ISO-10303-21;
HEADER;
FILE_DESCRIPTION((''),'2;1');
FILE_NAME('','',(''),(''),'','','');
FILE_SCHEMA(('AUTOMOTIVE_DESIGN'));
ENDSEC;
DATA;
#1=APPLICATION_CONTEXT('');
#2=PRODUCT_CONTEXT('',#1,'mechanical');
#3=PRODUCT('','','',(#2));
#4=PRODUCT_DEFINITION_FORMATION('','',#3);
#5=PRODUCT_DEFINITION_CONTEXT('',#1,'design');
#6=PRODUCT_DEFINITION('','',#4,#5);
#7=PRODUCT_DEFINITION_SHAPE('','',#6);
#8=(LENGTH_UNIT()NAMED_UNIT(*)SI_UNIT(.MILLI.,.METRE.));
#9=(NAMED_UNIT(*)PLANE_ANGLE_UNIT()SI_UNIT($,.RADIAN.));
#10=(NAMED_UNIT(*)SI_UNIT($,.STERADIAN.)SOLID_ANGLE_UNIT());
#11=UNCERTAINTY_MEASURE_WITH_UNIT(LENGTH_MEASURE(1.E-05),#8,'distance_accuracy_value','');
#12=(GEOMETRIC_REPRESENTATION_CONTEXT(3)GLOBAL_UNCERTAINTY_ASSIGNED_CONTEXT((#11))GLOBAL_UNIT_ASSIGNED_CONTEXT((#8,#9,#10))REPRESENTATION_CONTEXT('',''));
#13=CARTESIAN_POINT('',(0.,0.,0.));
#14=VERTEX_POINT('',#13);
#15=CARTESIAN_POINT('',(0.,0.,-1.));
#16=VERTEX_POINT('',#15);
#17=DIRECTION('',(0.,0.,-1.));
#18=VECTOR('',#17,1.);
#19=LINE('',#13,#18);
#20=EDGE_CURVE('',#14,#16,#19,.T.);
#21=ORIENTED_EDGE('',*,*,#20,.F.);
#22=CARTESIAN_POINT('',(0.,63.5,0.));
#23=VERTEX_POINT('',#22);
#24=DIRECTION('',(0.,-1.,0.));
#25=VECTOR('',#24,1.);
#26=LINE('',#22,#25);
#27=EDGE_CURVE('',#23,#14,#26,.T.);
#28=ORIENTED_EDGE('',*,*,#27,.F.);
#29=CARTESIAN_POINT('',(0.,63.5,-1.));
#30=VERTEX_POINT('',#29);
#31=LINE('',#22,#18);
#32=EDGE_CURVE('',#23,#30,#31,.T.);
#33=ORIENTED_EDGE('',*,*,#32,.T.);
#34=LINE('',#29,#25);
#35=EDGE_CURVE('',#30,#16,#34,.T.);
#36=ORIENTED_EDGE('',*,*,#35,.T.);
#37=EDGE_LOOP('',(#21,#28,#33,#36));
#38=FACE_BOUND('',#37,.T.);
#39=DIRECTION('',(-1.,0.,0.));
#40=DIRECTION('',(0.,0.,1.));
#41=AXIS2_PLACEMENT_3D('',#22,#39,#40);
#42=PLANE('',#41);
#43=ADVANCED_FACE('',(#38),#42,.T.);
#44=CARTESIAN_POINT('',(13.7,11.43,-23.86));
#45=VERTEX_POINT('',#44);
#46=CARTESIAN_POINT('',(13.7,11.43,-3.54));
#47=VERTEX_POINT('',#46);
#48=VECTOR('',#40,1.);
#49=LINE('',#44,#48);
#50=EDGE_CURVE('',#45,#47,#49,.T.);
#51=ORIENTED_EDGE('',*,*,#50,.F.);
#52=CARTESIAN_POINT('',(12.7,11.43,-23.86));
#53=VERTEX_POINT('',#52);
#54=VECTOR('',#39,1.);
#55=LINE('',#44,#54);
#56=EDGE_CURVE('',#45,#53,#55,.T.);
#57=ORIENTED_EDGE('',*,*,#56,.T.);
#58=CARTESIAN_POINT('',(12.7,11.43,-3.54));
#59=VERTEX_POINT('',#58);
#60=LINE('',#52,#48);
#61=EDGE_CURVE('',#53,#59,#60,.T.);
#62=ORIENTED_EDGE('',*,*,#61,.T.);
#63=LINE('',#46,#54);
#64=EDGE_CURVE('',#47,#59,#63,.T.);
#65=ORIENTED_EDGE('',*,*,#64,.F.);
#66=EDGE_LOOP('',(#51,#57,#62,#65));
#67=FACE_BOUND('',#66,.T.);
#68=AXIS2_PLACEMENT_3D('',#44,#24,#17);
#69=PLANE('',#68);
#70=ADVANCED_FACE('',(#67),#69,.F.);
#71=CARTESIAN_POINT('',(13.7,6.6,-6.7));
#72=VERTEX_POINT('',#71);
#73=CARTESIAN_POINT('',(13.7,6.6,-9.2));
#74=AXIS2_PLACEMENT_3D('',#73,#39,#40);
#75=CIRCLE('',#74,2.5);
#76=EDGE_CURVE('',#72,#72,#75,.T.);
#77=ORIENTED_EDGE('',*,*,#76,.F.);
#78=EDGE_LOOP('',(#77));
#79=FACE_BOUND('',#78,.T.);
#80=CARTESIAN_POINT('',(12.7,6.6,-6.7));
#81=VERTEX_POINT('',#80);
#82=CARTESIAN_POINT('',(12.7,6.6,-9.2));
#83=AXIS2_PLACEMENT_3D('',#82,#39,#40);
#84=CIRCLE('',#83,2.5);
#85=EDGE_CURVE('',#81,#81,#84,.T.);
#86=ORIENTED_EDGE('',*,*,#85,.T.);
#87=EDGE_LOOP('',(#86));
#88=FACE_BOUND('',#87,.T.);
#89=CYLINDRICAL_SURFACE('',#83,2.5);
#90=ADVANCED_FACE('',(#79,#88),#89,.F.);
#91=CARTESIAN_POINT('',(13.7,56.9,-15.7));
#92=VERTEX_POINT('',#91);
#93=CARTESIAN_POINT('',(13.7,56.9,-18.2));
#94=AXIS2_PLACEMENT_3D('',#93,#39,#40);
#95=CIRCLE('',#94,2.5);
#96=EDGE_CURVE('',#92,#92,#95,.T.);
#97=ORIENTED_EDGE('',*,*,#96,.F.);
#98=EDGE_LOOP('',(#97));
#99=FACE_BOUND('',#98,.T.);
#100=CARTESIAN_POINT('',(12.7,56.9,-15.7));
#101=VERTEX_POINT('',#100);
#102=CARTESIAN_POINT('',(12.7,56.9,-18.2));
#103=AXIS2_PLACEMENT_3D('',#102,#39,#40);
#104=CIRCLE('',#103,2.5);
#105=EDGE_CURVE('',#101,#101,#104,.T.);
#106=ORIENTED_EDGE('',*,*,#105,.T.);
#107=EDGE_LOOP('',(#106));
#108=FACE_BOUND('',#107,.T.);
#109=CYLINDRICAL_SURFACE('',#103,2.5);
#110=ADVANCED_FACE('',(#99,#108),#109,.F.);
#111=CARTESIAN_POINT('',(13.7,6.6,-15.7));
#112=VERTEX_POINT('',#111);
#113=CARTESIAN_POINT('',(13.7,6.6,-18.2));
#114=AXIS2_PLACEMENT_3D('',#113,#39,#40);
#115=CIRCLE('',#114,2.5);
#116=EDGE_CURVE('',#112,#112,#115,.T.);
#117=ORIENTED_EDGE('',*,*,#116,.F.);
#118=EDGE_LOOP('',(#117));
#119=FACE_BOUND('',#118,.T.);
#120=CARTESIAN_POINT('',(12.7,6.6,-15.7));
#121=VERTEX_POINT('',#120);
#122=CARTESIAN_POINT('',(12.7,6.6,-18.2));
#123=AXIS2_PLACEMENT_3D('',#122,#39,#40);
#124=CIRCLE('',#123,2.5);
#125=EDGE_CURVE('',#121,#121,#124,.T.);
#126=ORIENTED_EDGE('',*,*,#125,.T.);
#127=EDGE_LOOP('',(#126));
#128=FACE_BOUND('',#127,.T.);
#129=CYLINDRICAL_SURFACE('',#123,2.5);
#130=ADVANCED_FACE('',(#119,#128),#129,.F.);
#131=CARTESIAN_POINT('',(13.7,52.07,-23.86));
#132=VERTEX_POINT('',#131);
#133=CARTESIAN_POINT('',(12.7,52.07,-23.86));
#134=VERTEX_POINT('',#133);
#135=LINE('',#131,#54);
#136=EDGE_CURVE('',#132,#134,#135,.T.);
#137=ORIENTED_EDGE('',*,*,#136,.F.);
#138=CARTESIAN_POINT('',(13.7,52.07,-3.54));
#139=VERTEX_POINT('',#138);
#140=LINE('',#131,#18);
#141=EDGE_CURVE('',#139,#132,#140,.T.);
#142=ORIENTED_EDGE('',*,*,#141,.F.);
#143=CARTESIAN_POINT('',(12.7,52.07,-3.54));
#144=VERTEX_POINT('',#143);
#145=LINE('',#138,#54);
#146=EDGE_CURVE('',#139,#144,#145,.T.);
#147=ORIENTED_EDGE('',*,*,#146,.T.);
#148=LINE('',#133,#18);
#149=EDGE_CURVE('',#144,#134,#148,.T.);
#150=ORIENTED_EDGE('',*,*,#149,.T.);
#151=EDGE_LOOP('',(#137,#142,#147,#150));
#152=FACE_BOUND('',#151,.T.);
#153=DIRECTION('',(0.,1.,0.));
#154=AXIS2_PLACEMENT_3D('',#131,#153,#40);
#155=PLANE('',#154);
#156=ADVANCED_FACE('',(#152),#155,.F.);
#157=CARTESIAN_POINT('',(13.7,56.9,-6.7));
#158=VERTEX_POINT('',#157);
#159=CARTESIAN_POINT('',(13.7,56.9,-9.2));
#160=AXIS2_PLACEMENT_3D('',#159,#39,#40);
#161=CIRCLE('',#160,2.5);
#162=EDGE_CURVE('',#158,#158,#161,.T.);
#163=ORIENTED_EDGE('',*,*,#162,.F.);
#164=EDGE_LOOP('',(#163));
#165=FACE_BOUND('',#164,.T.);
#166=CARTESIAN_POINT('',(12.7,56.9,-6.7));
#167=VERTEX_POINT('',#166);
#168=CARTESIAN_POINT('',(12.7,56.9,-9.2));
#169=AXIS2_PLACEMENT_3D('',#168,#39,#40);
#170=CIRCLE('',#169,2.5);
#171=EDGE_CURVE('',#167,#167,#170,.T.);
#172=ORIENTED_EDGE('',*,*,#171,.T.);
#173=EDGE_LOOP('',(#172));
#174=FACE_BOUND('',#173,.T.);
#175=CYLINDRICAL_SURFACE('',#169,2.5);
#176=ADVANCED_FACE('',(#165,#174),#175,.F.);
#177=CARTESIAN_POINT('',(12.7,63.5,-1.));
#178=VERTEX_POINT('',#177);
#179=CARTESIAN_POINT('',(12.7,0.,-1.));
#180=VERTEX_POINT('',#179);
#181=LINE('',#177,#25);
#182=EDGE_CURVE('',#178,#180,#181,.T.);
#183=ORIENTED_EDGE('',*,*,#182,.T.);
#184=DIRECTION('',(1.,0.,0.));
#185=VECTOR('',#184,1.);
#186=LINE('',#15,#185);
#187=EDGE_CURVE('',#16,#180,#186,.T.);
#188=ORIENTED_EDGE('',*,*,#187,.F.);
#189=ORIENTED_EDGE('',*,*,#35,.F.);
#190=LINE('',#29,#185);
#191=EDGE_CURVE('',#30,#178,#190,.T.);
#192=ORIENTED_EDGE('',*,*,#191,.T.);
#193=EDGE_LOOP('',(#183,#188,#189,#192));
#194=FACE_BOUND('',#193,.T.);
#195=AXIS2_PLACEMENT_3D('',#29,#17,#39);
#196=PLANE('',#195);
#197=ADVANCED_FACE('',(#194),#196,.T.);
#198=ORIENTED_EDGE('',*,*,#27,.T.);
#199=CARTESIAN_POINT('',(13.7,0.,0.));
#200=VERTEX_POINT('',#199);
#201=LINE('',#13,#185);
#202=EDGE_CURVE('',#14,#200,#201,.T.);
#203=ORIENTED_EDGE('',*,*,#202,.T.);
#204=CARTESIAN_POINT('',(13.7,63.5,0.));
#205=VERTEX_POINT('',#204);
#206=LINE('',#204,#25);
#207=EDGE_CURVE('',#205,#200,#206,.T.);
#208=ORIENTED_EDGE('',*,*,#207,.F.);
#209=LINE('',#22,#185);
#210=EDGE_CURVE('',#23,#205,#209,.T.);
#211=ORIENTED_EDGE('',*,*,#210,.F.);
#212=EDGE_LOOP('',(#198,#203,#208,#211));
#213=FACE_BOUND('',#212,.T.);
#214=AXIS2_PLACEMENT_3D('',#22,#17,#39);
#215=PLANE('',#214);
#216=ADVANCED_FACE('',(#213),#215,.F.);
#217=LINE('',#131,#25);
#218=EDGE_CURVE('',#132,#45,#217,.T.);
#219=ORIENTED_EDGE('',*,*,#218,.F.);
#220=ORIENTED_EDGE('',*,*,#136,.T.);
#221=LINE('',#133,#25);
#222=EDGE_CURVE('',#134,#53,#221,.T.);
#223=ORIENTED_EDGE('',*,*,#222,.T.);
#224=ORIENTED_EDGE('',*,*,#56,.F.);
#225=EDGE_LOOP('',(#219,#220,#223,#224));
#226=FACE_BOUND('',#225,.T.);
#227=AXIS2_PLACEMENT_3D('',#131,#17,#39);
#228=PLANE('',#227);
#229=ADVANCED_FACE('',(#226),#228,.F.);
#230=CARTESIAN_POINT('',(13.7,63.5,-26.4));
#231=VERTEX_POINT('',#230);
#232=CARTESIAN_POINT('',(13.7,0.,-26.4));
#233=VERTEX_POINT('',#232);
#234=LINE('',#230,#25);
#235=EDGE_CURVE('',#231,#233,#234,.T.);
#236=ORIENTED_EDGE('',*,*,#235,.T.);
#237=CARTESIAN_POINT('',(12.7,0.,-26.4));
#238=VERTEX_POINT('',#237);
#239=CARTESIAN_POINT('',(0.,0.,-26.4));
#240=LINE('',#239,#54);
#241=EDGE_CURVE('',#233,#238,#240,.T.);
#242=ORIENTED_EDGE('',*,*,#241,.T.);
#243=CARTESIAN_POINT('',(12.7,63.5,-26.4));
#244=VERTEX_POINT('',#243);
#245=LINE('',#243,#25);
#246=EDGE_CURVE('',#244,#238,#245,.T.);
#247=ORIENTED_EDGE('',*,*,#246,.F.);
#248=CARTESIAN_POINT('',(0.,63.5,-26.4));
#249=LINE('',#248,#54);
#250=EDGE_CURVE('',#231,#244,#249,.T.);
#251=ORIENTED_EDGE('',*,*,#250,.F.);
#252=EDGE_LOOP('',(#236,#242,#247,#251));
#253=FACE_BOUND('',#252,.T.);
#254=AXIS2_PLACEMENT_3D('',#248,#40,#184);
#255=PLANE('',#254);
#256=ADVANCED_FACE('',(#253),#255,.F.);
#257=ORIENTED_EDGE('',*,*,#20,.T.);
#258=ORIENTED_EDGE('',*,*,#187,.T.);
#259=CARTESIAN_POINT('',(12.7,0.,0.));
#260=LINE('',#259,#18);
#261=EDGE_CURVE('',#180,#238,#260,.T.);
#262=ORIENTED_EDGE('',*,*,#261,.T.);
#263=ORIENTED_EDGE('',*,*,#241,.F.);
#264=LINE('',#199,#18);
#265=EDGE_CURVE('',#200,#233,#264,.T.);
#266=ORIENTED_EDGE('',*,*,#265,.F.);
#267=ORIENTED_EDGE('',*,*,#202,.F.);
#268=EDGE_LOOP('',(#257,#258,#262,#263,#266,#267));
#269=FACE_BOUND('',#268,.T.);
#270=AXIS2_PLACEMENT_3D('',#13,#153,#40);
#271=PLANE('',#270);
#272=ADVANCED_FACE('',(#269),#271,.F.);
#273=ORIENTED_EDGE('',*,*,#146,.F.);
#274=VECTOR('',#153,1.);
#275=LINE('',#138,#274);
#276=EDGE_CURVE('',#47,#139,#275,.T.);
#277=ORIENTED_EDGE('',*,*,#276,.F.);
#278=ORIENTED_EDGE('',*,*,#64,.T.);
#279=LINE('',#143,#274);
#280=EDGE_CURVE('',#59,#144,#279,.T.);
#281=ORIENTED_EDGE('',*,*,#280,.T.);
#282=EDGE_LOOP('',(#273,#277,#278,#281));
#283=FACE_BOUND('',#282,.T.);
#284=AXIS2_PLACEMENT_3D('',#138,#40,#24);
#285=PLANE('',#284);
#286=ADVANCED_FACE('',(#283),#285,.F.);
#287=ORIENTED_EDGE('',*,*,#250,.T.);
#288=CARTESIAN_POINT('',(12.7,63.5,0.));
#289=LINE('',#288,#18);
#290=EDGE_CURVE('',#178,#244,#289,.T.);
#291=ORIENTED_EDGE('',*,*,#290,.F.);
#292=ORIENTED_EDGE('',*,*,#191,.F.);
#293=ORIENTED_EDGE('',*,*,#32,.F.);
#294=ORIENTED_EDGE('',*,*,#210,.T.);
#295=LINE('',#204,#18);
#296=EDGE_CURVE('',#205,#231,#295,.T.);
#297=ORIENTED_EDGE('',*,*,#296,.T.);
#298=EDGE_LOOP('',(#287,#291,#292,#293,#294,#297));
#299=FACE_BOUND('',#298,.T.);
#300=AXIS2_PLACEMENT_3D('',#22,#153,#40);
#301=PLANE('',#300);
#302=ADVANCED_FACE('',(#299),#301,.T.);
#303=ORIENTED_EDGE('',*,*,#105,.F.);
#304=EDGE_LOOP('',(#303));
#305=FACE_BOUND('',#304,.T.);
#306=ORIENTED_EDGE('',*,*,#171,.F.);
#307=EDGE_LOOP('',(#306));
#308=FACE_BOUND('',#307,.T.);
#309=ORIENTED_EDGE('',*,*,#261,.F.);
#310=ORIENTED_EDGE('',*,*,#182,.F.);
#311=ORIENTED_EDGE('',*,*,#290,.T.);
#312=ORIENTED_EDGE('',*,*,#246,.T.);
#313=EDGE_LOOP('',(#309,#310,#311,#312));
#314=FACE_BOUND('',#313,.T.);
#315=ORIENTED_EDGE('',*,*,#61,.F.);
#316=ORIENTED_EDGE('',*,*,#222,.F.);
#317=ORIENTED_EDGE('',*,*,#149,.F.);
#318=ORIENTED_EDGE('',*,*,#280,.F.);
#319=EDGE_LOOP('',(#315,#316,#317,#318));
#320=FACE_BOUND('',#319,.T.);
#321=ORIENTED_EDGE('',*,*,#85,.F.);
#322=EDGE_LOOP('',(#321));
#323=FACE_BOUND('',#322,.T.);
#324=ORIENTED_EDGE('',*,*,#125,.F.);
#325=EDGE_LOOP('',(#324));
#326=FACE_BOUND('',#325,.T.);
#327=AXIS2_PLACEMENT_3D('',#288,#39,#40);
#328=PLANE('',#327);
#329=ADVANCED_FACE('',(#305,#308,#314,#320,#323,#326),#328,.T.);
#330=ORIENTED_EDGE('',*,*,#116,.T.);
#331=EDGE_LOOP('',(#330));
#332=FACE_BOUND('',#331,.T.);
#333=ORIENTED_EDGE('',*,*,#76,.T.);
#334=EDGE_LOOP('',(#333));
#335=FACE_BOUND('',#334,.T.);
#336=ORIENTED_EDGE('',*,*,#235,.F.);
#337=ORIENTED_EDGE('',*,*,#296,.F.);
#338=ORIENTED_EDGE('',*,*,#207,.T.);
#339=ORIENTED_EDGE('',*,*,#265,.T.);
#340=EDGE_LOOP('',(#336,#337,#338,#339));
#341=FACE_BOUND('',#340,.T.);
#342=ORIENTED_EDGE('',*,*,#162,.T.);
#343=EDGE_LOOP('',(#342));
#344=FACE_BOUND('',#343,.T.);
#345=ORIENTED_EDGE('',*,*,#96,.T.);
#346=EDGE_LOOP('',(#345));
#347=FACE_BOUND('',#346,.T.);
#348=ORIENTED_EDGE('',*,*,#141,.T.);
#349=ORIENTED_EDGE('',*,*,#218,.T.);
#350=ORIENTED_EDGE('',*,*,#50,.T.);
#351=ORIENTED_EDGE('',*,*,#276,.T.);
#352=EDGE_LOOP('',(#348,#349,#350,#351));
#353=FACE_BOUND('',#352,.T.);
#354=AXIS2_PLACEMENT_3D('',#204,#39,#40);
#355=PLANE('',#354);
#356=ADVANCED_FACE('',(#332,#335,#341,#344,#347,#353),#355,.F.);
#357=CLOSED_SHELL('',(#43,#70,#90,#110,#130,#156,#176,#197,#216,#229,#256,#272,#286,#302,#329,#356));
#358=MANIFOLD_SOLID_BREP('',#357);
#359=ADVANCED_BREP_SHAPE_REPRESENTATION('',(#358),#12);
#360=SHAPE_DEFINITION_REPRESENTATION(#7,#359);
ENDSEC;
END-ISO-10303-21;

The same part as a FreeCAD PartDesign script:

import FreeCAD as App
import Part
import Sketcher

V = App.Vector
Q = App.Units.Quantity

doc = App.newDocument("Part")
params = doc.addObject("Spreadsheet::Sheet", "Params")
for row, (alias, value) in enumerate([
    ("sketch1_height", "1 in"),
    ("sketch1_width", "0.5 in"),
    ("pad1_length", "2.5 in"),
    ("sketch2_width", "1.6 in"),
    ("sketch2_height", "0.8 in"),
    ("hole_diameter", "5 mm"),
], start=1):
    params.set(f"A{row}", alias)
    params.set(f"B{row}", "=" + value)
    params.setAlias(f"B{row}", alias)

body = doc.addObject("PartDesign::Body", "Body")

# Sketch on XZ plane
sketch1 = doc.addObject("Sketcher::SketchObject", "Sketch")
body.addObject(sketch1)
sketch1.AttachmentSupport = (doc.XZ_Plane, [""])
sketch1.MapMode = "FlatFace"
sketch1.addGeometry(Part.LineSegment(V(12.7, -26.4, 0), V(12.7, -1, 0)), False)
sketch1.addGeometry(Part.LineSegment(V(12.7, -1, 0), V(0, -1, 0)), False)
sketch1.addGeometry(Part.LineSegment(V(0, -1, 0), V(0, 0, 0)), False)
sketch1.addGeometry(Part.LineSegment(V(0, 0, 0), V(13.7, 0, 0)), False)
sketch1.addGeometry(Part.LineSegment(V(13.7, 0, 0), V(13.7, -26.4, 0)), False)
sketch1.addGeometry(Part.LineSegment(V(13.7, -26.4, 0), V(12.7, -26.4, 0)), False)
sketch1.addConstraint(Sketcher.Constraint("Coincident", 0, 2, 1, 1))
sketch1.addConstraint(Sketcher.Constraint("Coincident", 1, 2, 2, 1))
sketch1.addConstraint(Sketcher.Constraint("Coincident", 2, 2, 3, 1))
sketch1.addConstraint(Sketcher.Constraint("Coincident", 3, 2, 4, 1))
sketch1.addConstraint(Sketcher.Constraint("Coincident", 4, 2, 5, 1))
sketch1.addConstraint(Sketcher.Constraint("Coincident", 5, 2, 0, 1))
sketch1.addConstraint(Sketcher.Constraint("Vertical", 0))
sketch1.addConstraint(Sketcher.Constraint("Horizontal", 1))
sketch1.addConstraint(Sketcher.Constraint("Vertical", 2))
sketch1.addConstraint(Sketcher.Constraint("Horizontal", 3))
sketch1.addConstraint(Sketcher.Constraint("Vertical", 4))
sketch1.addConstraint(Sketcher.Constraint("Horizontal", 5))
sketch1.addConstraint(Sketcher.Constraint("Coincident", 2, 2, -1, 1))
sketch1.addConstraint(Sketcher.Constraint("Equal", 5, 2))
sketch1.addConstraint(Sketcher.Constraint("DistanceY", 0, 1, 0, 2, Q("1 in")))
sketch1.addConstraint(Sketcher.Constraint("DistanceX", 1, 2, 1, 1, Q("0.5 in")))
sketch1.addConstraint(Sketcher.Constraint("DistanceX", 3, 1, 3, 2, Q("13.7 mm")))
sketch1.setExpression("Constraints[14]", "Params.sketch1_height")
sketch1.setExpression("Constraints[15]", "Params.sketch1_width")
pad1 = doc.addObject("PartDesign::Pad", "Pad")
body.addObject(pad1)
pad1.Profile = sketch1
pad1.setExpression("Length", "Params.pad1_length")
pad1.Reversed = True

# Sketch on YZ plane
sketch2 = doc.addObject("Sketcher::SketchObject", "Sketch001")
body.addObject(sketch2)
sketch2.AttachmentSupport = (doc.YZ_Plane, [""])
sketch2.MapMode = "FlatFace"
sketch2.AttachmentOffset = App.Placement(V(0, 0, 0.5 * 25.4), App.Rotation())
sketch2.addGeometry(Part.LineSegment(V(52, -24, 0), V(11, -24, 0)), False)
sketch2.addGeometry(Part.LineSegment(V(11, -24, 0), V(11, -4, 0)), False)
sketch2.addGeometry(Part.LineSegment(V(11, -4, 0), V(52, -4, 0)), False)
sketch2.addGeometry(Part.LineSegment(V(52, -4, 0), V(52, -24, 0)), False)
sketch2.addConstraint(Sketcher.Constraint("Coincident", 0, 2, 1, 1))
sketch2.addConstraint(Sketcher.Constraint("Coincident", 1, 2, 2, 1))
sketch2.addConstraint(Sketcher.Constraint("Coincident", 2, 2, 3, 1))
sketch2.addConstraint(Sketcher.Constraint("Coincident", 3, 2, 0, 1))
sketch2.addConstraint(Sketcher.Constraint("Horizontal", 0))
sketch2.addConstraint(Sketcher.Constraint("Vertical", 1))
sketch2.addConstraint(Sketcher.Constraint("Horizontal", 2))
sketch2.addConstraint(Sketcher.Constraint("Vertical", 3))
sketch2.addConstraint(Sketcher.Constraint("DistanceX", 0, 2, 0, 1, Q("1.6 in")))
sketch2.addConstraint(Sketcher.Constraint("DistanceY", 1, 1, 1, 2, Q("0.8 in")))
sketch2.addConstraint(Sketcher.Constraint("DistanceX", -1, 1, 0, 2, Q("0.45 in")))
sketch2.addConstraint(Sketcher.Constraint("DistanceY", 0, 2, -1, 1, Q("23.86 mm")))
sketch2.setExpression("Constraints[8]", "Params.sketch2_width")
sketch2.setExpression("Constraints[9]", "Params.sketch2_height")
pocket1 = doc.addObject("PartDesign::Pocket", "Pocket")
body.addObject(pocket1)
pocket1.Profile = sketch2
pocket1.Type = "ThroughAll"
pocket1.Reversed = True

# Sketch on YZ plane
sketch3 = doc.addObject("Sketcher::SketchObject", "Sketch002")
body.addObject(sketch3)
sketch3.AttachmentSupport = (doc.YZ_Plane, [""])
sketch3.MapMode = "FlatFace"
sketch3.AttachmentOffset = App.Placement(V(0, 0, 0.5 * 25.4), App.Rotation())
sketch3.addGeometry(Part.Circle(V(6.6, -9.2, 0), V(0, 0, 1), 2.5), False)
sketch3.addGeometry(Part.Circle(V(56.9, -18.2, 0), V(0, 0, 1), 2.5), False)
sketch3.addGeometry(Part.Circle(V(56.9, -9.2, 0), V(0, 0, 1), 2.5), False)
sketch3.addGeometry(Part.Circle(V(6.6, -18.2, 0), V(0, 0, 1), 2.5), False)
sketch3.addConstraint(Sketcher.Constraint("Equal", 0, 1))
sketch3.addConstraint(Sketcher.Constraint("Equal", 1, 2))
sketch3.addConstraint(Sketcher.Constraint("Equal", 2, 3))
sketch3.addConstraint(Sketcher.Constraint("Horizontal", 0, 3, 2, 3))
sketch3.addConstraint(Sketcher.Constraint("Horizontal", 1, 3, 3, 3))
sketch3.addConstraint(Sketcher.Constraint("Vertical", 1, 3, 2, 3))
sketch3.addConstraint(Sketcher.Constraint("Vertical", 0, 3, 3, 3))
sketch3.addConstraint(Sketcher.Constraint("Diameter", 0, Q("5 mm")))
sketch3.addConstraint(Sketcher.Constraint("DistanceX", -1, 1, 0, 3, Q("6.6 mm")))
sketch3.addConstraint(Sketcher.Constraint("DistanceY", 0, 3, -1, 1, Q("9.2 mm")))
sketch3.addConstraint(Sketcher.Constraint("DistanceX", -1, 1, 1, 3, Q("56.9 mm")))
sketch3.addConstraint(Sketcher.Constraint("DistanceY", 1, 3, -1, 1, Q("18.2 mm")))
doc.recompute()
hole = doc.addObject("PartDesign::Hole", "Hole")
body.addObject(hole)
hole.Profile = sketch3
hole.ThreadType = "None"
hole.setExpression("Diameter", "Params.hole_diameter")
hole.DepthType = "ThroughAll"
hole.Reversed = True

doc.recompute()
